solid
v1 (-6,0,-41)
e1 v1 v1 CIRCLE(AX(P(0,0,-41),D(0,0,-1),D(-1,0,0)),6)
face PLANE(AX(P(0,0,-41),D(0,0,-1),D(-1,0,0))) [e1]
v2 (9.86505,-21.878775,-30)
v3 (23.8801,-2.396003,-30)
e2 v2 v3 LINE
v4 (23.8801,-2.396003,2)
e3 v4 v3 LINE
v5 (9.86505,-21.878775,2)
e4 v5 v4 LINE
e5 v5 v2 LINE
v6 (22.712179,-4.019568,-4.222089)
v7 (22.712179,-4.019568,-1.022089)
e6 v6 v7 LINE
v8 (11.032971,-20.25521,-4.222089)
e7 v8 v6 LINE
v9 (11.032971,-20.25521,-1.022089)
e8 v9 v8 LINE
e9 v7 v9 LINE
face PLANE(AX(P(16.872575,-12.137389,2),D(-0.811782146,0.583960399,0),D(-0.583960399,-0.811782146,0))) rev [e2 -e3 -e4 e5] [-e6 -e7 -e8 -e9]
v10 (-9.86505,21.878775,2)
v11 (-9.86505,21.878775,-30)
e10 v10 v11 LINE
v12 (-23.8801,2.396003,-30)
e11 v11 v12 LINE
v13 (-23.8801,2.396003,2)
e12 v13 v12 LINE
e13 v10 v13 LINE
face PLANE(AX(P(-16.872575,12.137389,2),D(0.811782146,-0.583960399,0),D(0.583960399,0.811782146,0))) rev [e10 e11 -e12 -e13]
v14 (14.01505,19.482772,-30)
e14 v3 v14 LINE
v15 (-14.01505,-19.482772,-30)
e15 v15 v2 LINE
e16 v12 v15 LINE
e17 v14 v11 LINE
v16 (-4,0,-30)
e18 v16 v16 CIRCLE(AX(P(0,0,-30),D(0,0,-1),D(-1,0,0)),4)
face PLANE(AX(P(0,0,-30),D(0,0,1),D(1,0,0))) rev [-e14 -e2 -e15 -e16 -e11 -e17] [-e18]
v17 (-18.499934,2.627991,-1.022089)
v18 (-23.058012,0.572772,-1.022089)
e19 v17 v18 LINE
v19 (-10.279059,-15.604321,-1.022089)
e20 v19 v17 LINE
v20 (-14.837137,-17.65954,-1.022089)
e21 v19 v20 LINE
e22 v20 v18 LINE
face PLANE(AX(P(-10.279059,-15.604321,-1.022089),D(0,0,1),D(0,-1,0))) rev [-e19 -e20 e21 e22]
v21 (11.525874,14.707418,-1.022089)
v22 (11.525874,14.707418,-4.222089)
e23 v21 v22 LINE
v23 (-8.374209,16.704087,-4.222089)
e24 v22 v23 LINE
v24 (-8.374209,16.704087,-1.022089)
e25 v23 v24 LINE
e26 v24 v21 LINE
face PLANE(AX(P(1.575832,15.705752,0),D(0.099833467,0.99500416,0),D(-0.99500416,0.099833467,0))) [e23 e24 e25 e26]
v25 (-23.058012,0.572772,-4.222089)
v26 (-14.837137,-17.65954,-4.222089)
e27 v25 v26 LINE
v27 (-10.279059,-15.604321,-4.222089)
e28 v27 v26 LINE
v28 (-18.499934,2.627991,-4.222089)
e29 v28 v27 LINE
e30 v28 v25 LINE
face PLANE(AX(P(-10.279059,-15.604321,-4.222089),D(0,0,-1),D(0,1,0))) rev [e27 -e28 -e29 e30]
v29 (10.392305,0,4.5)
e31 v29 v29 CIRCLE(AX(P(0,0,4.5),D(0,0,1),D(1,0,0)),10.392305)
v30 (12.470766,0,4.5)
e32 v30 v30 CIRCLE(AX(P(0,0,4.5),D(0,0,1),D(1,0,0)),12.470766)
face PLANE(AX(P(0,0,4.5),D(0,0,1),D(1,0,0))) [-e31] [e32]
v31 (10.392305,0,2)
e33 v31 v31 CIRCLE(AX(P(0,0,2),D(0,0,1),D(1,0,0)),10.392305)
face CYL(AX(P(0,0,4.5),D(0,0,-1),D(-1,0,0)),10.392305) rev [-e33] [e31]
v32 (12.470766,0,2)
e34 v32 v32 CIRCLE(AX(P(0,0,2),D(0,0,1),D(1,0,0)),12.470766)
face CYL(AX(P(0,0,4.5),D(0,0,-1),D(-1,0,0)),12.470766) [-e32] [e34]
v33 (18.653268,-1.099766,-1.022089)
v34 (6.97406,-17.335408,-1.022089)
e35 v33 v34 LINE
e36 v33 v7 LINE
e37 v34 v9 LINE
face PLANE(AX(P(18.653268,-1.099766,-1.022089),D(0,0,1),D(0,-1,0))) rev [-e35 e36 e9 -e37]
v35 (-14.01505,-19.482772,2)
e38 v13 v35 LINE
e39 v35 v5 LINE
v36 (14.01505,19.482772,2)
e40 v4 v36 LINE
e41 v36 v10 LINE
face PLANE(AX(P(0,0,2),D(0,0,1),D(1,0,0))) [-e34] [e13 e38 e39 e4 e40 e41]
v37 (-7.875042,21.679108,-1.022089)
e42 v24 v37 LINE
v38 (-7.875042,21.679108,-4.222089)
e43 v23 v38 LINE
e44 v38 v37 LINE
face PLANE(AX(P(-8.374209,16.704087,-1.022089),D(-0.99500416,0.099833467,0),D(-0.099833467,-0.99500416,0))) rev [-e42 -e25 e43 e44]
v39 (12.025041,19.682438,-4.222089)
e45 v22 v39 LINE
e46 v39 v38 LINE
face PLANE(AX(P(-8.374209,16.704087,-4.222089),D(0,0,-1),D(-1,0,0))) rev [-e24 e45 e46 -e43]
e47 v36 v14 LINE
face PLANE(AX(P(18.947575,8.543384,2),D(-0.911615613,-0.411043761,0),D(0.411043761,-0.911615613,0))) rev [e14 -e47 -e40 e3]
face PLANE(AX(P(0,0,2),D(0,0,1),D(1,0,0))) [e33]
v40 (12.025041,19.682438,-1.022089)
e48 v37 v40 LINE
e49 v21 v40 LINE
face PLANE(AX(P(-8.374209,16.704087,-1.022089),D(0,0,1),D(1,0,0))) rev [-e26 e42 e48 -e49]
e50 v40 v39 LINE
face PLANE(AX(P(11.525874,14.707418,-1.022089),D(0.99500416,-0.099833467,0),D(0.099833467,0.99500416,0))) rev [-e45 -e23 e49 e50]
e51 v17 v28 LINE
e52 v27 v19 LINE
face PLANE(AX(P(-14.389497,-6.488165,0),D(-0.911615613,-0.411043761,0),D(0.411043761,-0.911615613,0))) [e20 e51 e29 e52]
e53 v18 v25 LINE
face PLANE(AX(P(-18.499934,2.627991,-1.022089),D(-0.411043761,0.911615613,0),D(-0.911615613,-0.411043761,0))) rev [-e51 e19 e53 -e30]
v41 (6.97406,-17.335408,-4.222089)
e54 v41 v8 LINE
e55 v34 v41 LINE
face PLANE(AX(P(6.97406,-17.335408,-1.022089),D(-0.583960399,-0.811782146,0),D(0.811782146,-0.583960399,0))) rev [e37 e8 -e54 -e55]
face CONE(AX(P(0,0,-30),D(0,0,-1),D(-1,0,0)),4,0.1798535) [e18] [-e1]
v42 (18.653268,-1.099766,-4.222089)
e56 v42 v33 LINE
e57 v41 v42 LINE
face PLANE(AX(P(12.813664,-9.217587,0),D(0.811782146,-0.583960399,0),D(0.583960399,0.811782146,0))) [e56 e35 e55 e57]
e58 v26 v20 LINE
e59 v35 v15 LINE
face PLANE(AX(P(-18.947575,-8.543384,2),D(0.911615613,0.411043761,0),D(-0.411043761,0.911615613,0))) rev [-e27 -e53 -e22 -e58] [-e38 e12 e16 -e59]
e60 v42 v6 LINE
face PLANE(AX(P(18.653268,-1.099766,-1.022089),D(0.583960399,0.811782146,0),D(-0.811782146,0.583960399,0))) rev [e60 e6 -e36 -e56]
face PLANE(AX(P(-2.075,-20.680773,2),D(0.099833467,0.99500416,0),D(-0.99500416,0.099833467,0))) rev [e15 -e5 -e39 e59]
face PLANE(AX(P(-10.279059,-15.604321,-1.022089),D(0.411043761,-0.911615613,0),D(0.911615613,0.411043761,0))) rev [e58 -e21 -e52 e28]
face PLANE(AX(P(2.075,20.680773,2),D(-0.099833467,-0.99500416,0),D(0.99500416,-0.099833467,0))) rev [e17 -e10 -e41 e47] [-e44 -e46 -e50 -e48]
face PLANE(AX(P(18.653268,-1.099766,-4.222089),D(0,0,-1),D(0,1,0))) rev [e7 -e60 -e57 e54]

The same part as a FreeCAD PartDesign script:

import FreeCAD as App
import Part
import Sketcher
from FreeCAD import Vector

doc = App.newDocument("Part")
body = doc.addObject("PartDesign::Body", "Body")

# Sketch on XY plane
sketch1 = doc.addObject("Sketcher::SketchObject", "Sketch")
body.addObject(sketch1)
sketch1.AttachmentSupport = (doc.XY_Plane, [""])
sketch1.MapMode = "FlatFace"
sketch1.addGeometry([
    Part.LineSegment(Vector(-23.8801, 2.396003, 0), Vector(-14.01505, -19.482772, 0)),  # 0
    Part.LineSegment(Vector(-14.01505, -19.482772, 0), Vector(9.86505, -21.878775, 0)),  # 1
    Part.LineSegment(Vector(9.86505, -21.878775, 0), Vector(23.8801, -2.396003, 0)),  # 2
    Part.LineSegment(Vector(23.8801, -2.396003, 0), Vector(14.01505, 19.482772, 0)),  # 3
    Part.LineSegment(Vector(14.01505, 19.482772, 0), Vector(-9.86505, 21.878775, 0)),  # 4
    Part.LineSegment(Vector(-9.86505, 21.878775, 0), Vector(-23.8801, 2.396003, 0)),  # 5
    Part.Circle(Vector(0, 0, 0), Vector(0, 0, 1), 12.470766),  # 6
], False)
sketch1.addConstraint([
    Sketcher.Constraint("Coincident", 0, 2, 1, 1),
    Sketcher.Constraint("Coincident", 1, 2, 2, 1),
    Sketcher.Constraint("Coincident", 2, 2, 3, 1),
    Sketcher.Constraint("Coincident", 3, 2, 4, 1),
    Sketcher.Constraint("Coincident", 4, 2, 5, 1),
    Sketcher.Constraint("Coincident", 5, 2, 0, 1),
    Sketcher.Constraint("Coincident", 6, 3, -1, 1),
    Sketcher.Constraint("Symmetric", 0, 2, 3, 2, -1, 1),
    Sketcher.Constraint("Symmetric", 1, 2, 4, 2, -1, 1),
    Sketcher.Constraint("Symmetric", 2, 2, 5, 2, -1, 1),
    Sketcher.Constraint("Equal", 0, 1),
    Sketcher.Constraint("Equal", 1, 2),
    Sketcher.Constraint("Distance", 0, 24.0),
    Sketcher.Constraint("Diameter", 6, 24.941532),
    Sketcher.Constraint("DistanceX", 1, 2, 3, 2, 4.149999),
    Sketcher.Constraint("DistanceX", -1, 1, 2, 2, 23.8801),
    Sketcher.Constraint("DistanceX", 0, 2, 1, 2, 23.8801),
])
pad1 = doc.addObject("PartDesign::Pad", "Pad")
body.addObject(pad1)
pad1.Profile = sketch1
pad1.Type = "TwoLengths"
pad1.Length = 2
pad1.Length2 = 30

# Sketch on XY plane
sketch2 = doc.addObject("Sketcher::SketchObject", "Sketch001")
body.addObject(sketch2)
sketch2.AttachmentSupport = (doc.XY_Plane, [""])
sketch2.MapMode = "FlatFace"
sketch2.addGeometry([
    Part.Circle(Vector(0, 0, 0), Vector(0, 0, 1), 12.470766),
    Part.Circle(Vector(0, 0, 0), Vector(0, 0, 1), 10.392305),
], False)
sketch2.addConstraint([
    Sketcher.Constraint("Coincident", 0, 3, -1, 1),
    Sketcher.Constraint("Coincident", 1, 3, -1, 1),
    Sketcher.Constraint("Diameter", 0, 24.941532),
    Sketcher.Constraint("Diameter", 1, 20.78461),
])
pad2 = doc.addObject("PartDesign::Pad", "Pad001")
body.addObject(pad2)
pad2.Profile = sketch2
pad2.Type = "TwoLengths"
pad2.Length = 4.5
pad2.Length2 = 30

# Sketch on XY plane
sketch3 = doc.addObject("Sketcher::SketchObject", "Sketch002")
body.addObject(sketch3)
sketch3.AttachmentSupport = (doc.XY_Plane, [""])
sketch3.MapMode = "FlatFace"
sketch3.addGeometry(Part.Circle(Vector(0, 0, 0), Vector(0, 0, 1), 10.392305), False)
sketch3.addConstraint([
    Sketcher.Constraint("Coincident", 0, 3, -1, 1),
    Sketcher.Constraint("Diameter", 0, 20.78461),
])
pad3 = doc.addObject("PartDesign::Pad", "Pad002")
body.addObject(pad3)
pad3.Profile = sketch3
pad3.Type = "TwoLengths"
pad3.Length = 2
pad3.Length2 = 30

# Sketch on an angled plane
sketch4 = doc.addObject("Sketcher::SketchObject", "Sketch003")
body.addObject(sketch4)
sketch4.Placement = App.Placement(Vector(16.872575, -12.137389, 0), App.Rotation(Vector(0, 0, -1), Vector(0.583960399, 0.811782146, 0), Vector(0.811782146, -0.583960399, 0), "ZXY"))
sketch4.addGeometry([
    Part.LineSegment(Vector(1.022089, 10, 0), Vector(1.022089, -10, 0)),
    Part.LineSegment(Vector(1.022089, -10, 0), Vector(4.222089, -10, 0)),
    Part.LineSegment(Vector(4.222089, -10, 0), Vector(4.222089, 10, 0)),
    Part.LineSegment(Vector(4.222089, 10, 0), Vector(1.022089, 10, 0)),
], False)
sketch4.addConstraint([
    Sketcher.Constraint("Coincident", 0, 2, 1, 1),
    Sketcher.Constraint("Coincident", 1, 2, 2, 1),
    Sketcher.Constraint("Coincident", 2, 2, 3, 1),
    Sketcher.Constraint("Coincident", 3, 2, 0, 1),
    Sketcher.Constraint("Vertical", 0),
    Sketcher.Constraint("Horizontal", 1),
    Sketcher.Constraint("Vertical", 2),
    Sketcher.Constraint("Horizontal", 3),
    Sketcher.Constraint("DistanceY", 0, 2, 0, 1, 20.0),
    Sketcher.Constraint("DistanceX", 1, 1, 1, 2, 3.2),
    Sketcher.Constraint("DistanceY", 0, 2, -1, 1, 10.0),
    Sketcher.Constraint("DistanceX", -1, 1, 0, 2, 1.022089),
])
pocket1 = doc.addObject("PartDesign::Pocket", "Pocket")
body.addObject(pocket1)
pocket1.Profile = sketch4
pocket1.Length = 5
doc.recompute()

polarpattern = doc.addObject("PartDesign::PolarPattern", "PolarPattern")
body.addObject(polarpattern)
polarpattern.Originals = [pocket1]
polarpattern.Axis = (doc.Z_Axis, [""])
polarpattern.Angle = 360
polarpattern.Occurrences = 3
body.Tip = polarpattern

# Sketch on XY plane
sketch5 = doc.addObject("Sketcher::SketchObject", "Sketch004")
body.addObject(sketch5)
sketch5.AttachmentSupport = (doc.XY_Plane, [""])
sketch5.MapMode = "FlatFace"
sketch5.AttachmentOffset = App.Placement(Vector(0, 0, -41), App.Rotation())
sketch5.addGeometry(Part.Circle(Vector(0, 0, 0), Vector(0, 0, 1), 6), False)
sketch5.addConstraint([
    Sketcher.Constraint("Coincident", 0, 3, -1, 1),
    Sketcher.Constraint("Diameter", 0, 12.0),
])

# Sketch on XY plane
sketch6 = doc.addObject("Sketcher::SketchObject", "Sketch005")
body.addObject(sketch6)
sketch6.AttachmentSupport = (doc.XY_Plane, [""])
sketch6.MapMode = "FlatFace"
sketch6.AttachmentOffset = App.Placement(Vector(0, 0, -30), App.Rotation())
sketch6.addGeometry(Part.Circle(Vector(0, 0, 0), Vector(0, 0, 1), 4), False)
sketch6.addConstraint([
    Sketcher.Constraint("Coincident", 0, 3, -1, 1),
    Sketcher.Constraint("Diameter", 0, 8.0),
])

additiveloft = doc.addObject("PartDesign::AdditiveLoft", "AdditiveLoft")
body.addObject(additiveloft)
additiveloft.Profile = sketch5
additiveloft.Sections = [sketch6]

doc.recompute()
